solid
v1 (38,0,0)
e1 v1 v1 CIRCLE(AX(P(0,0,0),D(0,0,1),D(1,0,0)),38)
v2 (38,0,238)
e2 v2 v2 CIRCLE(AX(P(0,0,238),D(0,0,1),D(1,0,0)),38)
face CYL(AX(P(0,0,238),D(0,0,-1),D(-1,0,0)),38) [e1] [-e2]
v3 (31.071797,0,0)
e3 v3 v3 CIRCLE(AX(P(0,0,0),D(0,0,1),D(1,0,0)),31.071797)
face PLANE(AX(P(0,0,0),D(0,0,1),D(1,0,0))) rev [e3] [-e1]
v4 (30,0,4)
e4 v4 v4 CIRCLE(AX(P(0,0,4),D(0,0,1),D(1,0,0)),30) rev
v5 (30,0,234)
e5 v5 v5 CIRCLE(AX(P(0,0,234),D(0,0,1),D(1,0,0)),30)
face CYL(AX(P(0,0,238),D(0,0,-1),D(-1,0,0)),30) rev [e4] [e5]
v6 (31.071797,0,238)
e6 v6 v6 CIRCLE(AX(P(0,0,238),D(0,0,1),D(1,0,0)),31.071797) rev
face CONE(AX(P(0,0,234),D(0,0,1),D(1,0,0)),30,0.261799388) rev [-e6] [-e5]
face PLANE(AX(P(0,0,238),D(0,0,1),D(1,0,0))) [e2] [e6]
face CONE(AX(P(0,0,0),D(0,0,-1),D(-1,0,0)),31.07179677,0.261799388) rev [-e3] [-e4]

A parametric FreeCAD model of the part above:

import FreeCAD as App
import Part
import Sketcher
Q = App.Units.Quantity


def edges_at(feature, points):
    """Names of the edges that pass closest to the given points."""
    edges = feature.Shape.Edges
    near = lambda p: min(range(len(edges)), key=lambda i: edges[i].distToShape(Part.Vertex(*p))[0])
    return sorted({f"Edge{near(p) + 1}" for p in points})

doc = App.newDocument("Part")
body = doc.addObject("PartDesign::Body", "Body")

# Sketch on XY plane
sketch1 = body.newObject("Sketcher::SketchObject", "Sketch")
sketch1.AttachmentSupport = (doc.getObject("XY_Plane"), [""])
sketch1.MapMode = "FlatFace"
sketch1.addGeometry(Part.Circle(App.Vector(0, 0, 0), App.Vector(0, 0, 1), 38), False)
sketch1.addGeometry(Part.Circle(App.Vector(0, 0, 0), App.Vector(0, 0, 1), 30), False)
sketch1.addConstraint(Sketcher.Constraint("Coincident", 0, 3, -1, 1))
sketch1.addConstraint(Sketcher.Constraint("Coincident", 1, 3, -1, 1))
sketch1.addConstraint(Sketcher.Constraint("Diameter", 0, Q("76 mm")))
sketch1.addConstraint(Sketcher.Constraint("Diameter", 1, Q("60 mm")))
pad1 = body.newObject("PartDesign::Pad", "Pad")
pad1.Profile = sketch1
pad1.Length = 238
doc.recompute()

chamfer = body.newObject("PartDesign::Chamfer", "Chamfer")
chamfer.Base = (pad1, edges_at(pad1, [(-30, 0, 0)]))
chamfer.ChamferType = "Two distances"
chamfer.Size = 4
chamfer.Size2 = 1.071797
doc.recompute()

chamfer2 = body.newObject("PartDesign::Chamfer", "Chamfer001")
chamfer2.Base = (chamfer, edges_at(chamfer, [(-30, 0, 238)]))
chamfer2.ChamferType = "Two distances"
chamfer2.Size = 4
chamfer2.Size2 = 1.071797

doc.recompute()
